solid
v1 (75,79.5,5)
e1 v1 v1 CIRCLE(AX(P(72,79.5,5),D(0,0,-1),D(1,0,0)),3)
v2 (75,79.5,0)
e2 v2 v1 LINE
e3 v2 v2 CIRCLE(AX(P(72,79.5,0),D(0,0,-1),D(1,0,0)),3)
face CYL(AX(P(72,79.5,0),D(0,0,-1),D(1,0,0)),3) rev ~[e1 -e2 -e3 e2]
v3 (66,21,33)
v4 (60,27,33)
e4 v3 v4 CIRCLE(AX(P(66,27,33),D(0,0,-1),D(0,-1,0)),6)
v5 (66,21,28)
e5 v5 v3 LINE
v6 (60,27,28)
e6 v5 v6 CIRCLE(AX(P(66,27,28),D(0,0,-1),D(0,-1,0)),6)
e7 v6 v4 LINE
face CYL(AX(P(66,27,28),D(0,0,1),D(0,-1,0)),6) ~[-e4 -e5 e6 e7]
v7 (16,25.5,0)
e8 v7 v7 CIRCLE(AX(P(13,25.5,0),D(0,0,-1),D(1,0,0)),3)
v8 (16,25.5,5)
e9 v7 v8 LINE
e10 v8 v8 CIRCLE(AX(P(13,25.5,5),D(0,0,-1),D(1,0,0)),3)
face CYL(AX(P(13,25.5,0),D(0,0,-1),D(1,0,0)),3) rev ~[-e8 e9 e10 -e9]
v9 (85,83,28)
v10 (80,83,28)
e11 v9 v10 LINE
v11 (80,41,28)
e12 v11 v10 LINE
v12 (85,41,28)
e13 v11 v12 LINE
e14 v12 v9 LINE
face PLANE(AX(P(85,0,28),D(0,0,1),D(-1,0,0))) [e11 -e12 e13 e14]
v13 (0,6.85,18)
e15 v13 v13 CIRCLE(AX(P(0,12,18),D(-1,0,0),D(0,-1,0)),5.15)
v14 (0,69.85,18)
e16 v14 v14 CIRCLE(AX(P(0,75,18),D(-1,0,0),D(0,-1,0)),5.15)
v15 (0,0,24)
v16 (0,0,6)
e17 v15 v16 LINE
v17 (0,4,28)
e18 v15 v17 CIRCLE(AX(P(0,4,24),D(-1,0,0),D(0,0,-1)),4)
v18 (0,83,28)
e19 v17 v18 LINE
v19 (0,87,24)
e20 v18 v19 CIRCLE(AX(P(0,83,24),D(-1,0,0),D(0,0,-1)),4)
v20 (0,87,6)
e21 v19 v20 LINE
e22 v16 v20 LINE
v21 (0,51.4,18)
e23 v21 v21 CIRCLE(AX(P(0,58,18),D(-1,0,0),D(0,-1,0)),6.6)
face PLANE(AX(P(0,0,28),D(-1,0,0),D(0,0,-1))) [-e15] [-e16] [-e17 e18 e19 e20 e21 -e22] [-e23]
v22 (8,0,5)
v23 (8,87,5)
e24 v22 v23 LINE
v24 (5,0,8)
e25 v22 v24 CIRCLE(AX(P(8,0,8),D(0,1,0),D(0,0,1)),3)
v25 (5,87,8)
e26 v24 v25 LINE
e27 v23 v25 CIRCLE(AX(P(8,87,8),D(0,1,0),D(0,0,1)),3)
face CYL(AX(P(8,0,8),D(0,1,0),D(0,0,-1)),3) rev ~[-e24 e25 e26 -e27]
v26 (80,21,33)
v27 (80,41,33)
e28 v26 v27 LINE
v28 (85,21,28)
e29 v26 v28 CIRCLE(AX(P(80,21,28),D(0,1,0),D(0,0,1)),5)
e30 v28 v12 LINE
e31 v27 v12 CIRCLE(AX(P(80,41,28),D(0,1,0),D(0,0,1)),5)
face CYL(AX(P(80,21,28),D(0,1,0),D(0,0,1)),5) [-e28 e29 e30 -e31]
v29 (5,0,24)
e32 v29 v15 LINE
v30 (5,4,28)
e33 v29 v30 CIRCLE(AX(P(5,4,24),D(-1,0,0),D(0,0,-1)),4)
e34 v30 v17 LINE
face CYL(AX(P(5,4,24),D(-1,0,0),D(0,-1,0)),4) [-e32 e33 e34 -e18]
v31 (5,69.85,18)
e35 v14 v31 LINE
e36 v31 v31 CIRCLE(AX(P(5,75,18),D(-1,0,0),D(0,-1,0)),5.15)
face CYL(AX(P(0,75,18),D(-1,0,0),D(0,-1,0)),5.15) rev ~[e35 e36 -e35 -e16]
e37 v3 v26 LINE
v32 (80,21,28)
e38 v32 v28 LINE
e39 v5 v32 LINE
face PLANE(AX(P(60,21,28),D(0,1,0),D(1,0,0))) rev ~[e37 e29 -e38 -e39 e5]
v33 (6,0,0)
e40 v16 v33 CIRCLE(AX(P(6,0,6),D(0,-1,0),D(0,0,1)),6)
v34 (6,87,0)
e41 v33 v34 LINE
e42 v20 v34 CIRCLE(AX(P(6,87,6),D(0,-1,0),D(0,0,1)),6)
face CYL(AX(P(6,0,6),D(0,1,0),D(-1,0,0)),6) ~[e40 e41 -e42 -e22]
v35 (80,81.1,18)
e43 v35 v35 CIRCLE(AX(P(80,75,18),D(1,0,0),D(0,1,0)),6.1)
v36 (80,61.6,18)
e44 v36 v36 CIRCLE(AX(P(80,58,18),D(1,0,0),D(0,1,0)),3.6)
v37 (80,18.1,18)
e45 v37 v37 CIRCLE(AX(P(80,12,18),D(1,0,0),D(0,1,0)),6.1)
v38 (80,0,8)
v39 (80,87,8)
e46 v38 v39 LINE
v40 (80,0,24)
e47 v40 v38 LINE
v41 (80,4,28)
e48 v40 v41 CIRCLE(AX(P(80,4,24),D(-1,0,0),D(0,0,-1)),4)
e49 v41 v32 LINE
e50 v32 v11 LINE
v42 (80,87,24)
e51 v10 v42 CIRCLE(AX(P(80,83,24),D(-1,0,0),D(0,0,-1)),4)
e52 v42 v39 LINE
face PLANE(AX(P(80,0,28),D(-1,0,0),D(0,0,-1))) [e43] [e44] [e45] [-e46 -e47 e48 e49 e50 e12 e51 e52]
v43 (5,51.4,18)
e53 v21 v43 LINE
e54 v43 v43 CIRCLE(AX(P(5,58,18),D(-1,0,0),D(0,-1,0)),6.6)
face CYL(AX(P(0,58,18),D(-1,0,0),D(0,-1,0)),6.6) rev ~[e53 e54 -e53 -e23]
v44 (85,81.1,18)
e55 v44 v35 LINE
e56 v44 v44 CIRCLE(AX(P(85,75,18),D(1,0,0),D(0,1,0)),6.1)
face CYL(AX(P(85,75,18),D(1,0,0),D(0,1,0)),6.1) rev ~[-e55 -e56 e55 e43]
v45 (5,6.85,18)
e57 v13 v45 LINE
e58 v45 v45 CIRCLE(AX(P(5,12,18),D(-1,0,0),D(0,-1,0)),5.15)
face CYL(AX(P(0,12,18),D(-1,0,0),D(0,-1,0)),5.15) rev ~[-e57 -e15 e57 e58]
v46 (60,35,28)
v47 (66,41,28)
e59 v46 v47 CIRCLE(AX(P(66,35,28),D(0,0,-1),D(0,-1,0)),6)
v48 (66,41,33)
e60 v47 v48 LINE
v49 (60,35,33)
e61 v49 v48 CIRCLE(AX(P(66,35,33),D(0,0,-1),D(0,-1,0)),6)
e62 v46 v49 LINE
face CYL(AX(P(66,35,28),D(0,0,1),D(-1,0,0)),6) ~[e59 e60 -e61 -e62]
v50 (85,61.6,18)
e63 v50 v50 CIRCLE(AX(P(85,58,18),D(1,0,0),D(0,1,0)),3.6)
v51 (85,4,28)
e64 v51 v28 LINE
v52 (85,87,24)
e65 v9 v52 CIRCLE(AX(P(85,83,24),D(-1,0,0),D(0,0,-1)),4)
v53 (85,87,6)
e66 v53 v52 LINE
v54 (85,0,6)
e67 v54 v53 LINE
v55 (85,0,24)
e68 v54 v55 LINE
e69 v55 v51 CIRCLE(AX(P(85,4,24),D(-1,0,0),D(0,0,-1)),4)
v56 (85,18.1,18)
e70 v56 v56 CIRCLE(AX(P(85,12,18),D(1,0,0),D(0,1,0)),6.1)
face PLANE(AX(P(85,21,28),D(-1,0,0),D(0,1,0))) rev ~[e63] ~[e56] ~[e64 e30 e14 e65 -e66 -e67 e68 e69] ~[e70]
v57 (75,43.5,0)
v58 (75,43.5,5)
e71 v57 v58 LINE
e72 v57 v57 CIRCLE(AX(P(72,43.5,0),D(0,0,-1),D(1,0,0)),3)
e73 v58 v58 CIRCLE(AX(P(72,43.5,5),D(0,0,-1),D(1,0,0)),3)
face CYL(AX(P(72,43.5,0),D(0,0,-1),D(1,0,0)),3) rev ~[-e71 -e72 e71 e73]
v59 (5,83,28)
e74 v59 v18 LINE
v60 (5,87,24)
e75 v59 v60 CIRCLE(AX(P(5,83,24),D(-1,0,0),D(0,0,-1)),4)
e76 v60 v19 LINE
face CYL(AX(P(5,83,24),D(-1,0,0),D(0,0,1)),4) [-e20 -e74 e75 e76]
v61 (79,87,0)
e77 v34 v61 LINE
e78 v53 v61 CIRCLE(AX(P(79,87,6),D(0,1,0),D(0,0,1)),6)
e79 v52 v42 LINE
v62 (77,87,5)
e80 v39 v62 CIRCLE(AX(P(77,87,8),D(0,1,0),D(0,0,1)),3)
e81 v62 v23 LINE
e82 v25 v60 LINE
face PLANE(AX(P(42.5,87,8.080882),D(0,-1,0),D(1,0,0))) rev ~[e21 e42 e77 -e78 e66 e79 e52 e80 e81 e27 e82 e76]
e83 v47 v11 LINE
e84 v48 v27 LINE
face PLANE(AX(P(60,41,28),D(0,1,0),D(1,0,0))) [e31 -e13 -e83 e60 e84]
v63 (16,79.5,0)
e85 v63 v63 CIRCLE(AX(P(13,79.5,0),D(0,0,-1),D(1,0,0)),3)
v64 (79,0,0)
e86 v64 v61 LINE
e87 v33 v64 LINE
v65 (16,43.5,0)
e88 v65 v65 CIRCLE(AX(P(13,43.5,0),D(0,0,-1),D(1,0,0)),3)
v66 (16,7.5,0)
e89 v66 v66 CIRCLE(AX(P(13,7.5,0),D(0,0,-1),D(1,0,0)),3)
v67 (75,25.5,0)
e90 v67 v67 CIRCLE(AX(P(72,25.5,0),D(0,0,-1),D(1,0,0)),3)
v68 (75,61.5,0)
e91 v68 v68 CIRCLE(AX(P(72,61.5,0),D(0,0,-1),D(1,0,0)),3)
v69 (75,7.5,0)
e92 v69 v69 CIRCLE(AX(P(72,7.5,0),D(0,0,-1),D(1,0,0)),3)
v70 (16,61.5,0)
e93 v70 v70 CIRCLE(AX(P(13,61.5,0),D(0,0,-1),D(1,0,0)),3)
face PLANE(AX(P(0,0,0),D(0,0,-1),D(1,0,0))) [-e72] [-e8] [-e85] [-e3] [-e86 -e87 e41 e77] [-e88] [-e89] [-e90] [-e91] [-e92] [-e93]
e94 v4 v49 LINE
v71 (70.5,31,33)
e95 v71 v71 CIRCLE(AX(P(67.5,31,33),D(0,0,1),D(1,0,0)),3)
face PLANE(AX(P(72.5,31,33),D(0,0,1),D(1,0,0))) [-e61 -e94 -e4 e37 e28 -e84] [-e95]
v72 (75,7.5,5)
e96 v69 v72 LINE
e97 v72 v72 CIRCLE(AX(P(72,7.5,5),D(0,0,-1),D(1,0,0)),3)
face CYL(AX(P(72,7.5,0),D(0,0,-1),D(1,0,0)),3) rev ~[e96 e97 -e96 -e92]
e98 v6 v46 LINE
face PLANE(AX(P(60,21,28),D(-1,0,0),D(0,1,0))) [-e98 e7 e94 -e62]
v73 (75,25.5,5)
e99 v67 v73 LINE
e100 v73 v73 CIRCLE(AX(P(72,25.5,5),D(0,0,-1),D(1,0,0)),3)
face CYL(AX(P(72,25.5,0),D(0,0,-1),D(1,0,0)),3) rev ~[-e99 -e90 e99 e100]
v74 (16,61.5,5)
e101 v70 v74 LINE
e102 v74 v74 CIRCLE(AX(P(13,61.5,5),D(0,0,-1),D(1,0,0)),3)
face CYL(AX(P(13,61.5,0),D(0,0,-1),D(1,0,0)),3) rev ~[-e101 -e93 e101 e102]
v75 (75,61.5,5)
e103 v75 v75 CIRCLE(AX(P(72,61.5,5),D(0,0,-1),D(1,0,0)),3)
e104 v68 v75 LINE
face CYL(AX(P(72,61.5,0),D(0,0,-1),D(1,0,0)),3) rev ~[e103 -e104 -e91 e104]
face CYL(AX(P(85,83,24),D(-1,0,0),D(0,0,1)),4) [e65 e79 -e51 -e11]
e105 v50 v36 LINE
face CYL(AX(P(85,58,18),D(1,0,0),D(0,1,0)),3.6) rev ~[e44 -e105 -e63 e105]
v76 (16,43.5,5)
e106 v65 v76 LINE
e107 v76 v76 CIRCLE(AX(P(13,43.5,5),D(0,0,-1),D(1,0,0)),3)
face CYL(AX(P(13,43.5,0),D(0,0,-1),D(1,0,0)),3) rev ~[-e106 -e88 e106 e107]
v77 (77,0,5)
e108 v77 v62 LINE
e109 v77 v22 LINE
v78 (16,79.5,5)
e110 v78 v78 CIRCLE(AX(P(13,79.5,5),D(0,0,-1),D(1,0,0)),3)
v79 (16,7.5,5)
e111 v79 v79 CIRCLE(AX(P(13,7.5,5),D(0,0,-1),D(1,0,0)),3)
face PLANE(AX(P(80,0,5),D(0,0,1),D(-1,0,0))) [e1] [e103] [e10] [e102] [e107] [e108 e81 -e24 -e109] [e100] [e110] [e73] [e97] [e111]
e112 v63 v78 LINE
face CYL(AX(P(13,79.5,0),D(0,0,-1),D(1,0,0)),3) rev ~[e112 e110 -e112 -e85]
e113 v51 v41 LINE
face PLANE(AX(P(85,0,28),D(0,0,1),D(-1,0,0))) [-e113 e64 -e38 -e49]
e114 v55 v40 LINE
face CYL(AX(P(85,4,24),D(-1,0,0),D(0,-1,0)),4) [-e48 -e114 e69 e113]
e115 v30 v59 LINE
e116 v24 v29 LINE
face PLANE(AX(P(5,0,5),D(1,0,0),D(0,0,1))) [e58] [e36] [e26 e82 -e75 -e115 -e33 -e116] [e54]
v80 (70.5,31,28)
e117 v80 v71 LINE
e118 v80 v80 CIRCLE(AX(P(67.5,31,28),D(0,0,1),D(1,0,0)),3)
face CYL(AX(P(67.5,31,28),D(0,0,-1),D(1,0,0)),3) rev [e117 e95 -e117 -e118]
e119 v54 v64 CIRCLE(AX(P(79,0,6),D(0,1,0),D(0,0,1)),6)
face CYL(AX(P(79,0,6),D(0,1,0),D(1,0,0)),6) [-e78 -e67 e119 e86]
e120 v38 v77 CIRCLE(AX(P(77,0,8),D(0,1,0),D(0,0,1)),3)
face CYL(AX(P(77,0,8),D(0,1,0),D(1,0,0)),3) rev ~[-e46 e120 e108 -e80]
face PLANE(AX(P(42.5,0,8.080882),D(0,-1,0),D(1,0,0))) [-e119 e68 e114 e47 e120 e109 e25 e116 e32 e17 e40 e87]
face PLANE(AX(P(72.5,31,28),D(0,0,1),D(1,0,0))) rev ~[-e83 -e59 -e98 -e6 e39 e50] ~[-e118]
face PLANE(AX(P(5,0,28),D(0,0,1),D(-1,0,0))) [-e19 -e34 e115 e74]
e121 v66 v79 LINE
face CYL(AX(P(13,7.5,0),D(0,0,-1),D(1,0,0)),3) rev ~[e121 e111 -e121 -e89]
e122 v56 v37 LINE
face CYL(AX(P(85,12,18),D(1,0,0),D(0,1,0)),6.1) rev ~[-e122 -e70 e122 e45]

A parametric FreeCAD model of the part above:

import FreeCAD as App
import Part
import Sketcher
from FreeCAD import Vector
Q = App.Units.Quantity


def edges_at(feature, points):
    """Names of the edges that pass closest to the given points."""
    edges = feature.Shape.Edges
    near = lambda p: min(range(len(edges)), key=lambda i: edges[i].distToShape(Part.Vertex(*p))[0])
    return sorted({f"Edge{near(p) + 1}" for p in points})

doc = App.newDocument("Part")
body = doc.addObject("PartDesign::Body", "Body")

sketch1 = body.newObject("Sketcher::SketchObject", "Sketch")
sketch1.AttachmentSupport = (doc.getObject("XZ_Plane"), [""])
sketch1.MapMode = "FlatFace"
sketch1.addGeometry([
    Part.LineSegment(Vector(0, 28, 0), Vector(0, 0, 0)),
    Part.LineSegment(Vector(0, 0, 0), Vector(85, 0, 0)),
    Part.LineSegment(Vector(85, 0, 0), Vector(85, 28, 0)),
    Part.LineSegment(Vector(85, 28, 0), Vector(80, 28, 0)),
    Part.LineSegment(Vector(80, 28, 0), Vector(80, 5, 0)),
    Part.LineSegment(Vector(80, 5, 0), Vector(5, 5, 0)),
    Part.LineSegment(Vector(5, 5, 0), Vector(5, 28, 0)),
    Part.LineSegment(Vector(5, 28, 0), Vector(0, 28, 0)),
], False)
sketch1.addConstraint([
    Sketcher.Constraint("Coincident", 0, 2, 1, 1),
    Sketcher.Constraint("Coincident", 1, 2, 2, 1),
    Sketcher.Constraint("Coincident", 2, 2, 3, 1),
    Sketcher.Constraint("Coincident", 3, 2, 4, 1),
    Sketcher.Constraint("Coincident", 4, 2, 5, 1),
    Sketcher.Constraint("Coincident", 5, 2, 6, 1),
    Sketcher.Constraint("Coincident", 6, 2, 7, 1),
    Sketcher.Constraint("Coincident", 7, 2, 0, 1),
    Sketcher.Constraint("Vertical", 0),
    Sketcher.Constraint("Horizontal", 1),
    Sketcher.Constraint("Vertical", 2),
    Sketcher.Constraint("Horizontal", 3),
    Sketcher.Constraint("Vertical", 4),
    Sketcher.Constraint("Horizontal", 5),
    Sketcher.Constraint("Vertical", 6),
    Sketcher.Constraint("Horizontal", 7),
    Sketcher.Constraint("Coincident", 0, 2, -1, 1),
    Sketcher.Constraint("Horizontal", 3, 2, 6, 2),
    Sketcher.Constraint("Equal", 3, 7),
    Sketcher.Constraint("DistanceX", 1, 1, 1, 2, Q("85 mm")),
    Sketcher.Constraint("DistanceX", 3, 2, 3, 1, Q("5 mm")),
    Sketcher.Constraint("DistanceY", 0, 2, 0, 1, Q("28 mm")),
    Sketcher.Constraint("DistanceY", 4, 2, 4, 1, Q("23 mm")),
])
pad1 = body.newObject("PartDesign::Pad", "Pad")
pad1.Profile = sketch1
pad1.Length = 87
pad1.Reversed = True
doc.recompute()

fillet = body.newObject("PartDesign::Fillet", "Fillet")
fillet.Base = (pad1, edges_at(pad1, [(5, 43.5, 5)]))
fillet.Radius = 3
doc.recompute()

fillet2 = body.newObject("PartDesign::Fillet", "Fillet001")
fillet2.Base = (fillet, edges_at(fillet, [(0, 43.5, 0), (85, 43.5, 0)]))
fillet2.Radius = 6
doc.recompute()

fillet3 = body.newObject("PartDesign::Fillet", "Fillet002")
fillet3.Base = (fillet2, edges_at(fillet2, [(80, 43.5, 5)]))
fillet3.Radius = 3
doc.recompute()

fillet4 = body.newObject("PartDesign::Fillet", "Fillet003")
fillet4.Base = (fillet3, edges_at(fillet3, [
    (82.5, 0, 28),
    (2.5, 0, 28),
    (2.5, 87, 28),
    (82.5, 87, 28),
]))
fillet4.Radius = 4

sketch2 = body.newObject("Sketcher::SketchObject", "Sketch001")
sketch2.AttachmentSupport = (doc.getObject("XY_Plane"), [""])
sketch2.MapMode = "FlatFace"
sketch2.AttachmentOffset = App.Placement(Vector(0, 0, 28), App.Rotation())
sketch2.addGeometry([
    Part.LineSegment(Vector(60, 41, 0), Vector(60, 21, 0)),
    Part.LineSegment(Vector(60, 21, 0), Vector(85, 21, 0)),
    Part.LineSegment(Vector(85, 21, 0), Vector(85, 41, 0)),
    Part.LineSegment(Vector(85, 41, 0), Vector(60, 41, 0)),
    Part.Circle(Vector(67.5, 31, 0), Vector(0, 0, 1), 3),
], False)
sketch2.addConstraint([
    Sketcher.Constraint("Coincident", 0, 2, 1, 1),
    Sketcher.Constraint("Coincident", 1, 2, 2, 1),
    Sketcher.Constraint("Coincident", 2, 2, 3, 1),
    Sketcher.Constraint("Coincident", 3, 2, 0, 1),
    Sketcher.Constraint("Vertical", 0),
    Sketcher.Constraint("Horizontal", 1),
    Sketcher.Constraint("Vertical", 2),
    Sketcher.Constraint("Horizontal", 3),
    Sketcher.Constraint("Diameter", 4, Q("6 mm")),
    Sketcher.Constraint("DistanceX", 1, 1, 1, 2, Q("25 mm")),
    Sketcher.Constraint("DistanceY", 0, 2, 0, 1, Q("20 mm")),
    Sketcher.Constraint("DistanceY", -1, 1, 4, 3, Q("31 mm")),
    Sketcher.Constraint("DistanceX", -1, 1, 0, 2, Q("60 mm")),
    Sketcher.Constraint("DistanceY", -1, 1, 0, 2, Q("21 mm")),
    Sketcher.Constraint("DistanceX", -1, 1, 4, 3, Q("67.5 mm")),
])
pad2 = body.newObject("PartDesign::Pad", "Pad001")
pad2.Profile = sketch2
pad2.Length = 5
doc.recompute()

fillet5 = body.newObject("PartDesign::Fillet", "Fillet004")
fillet5.Base = (pad2, edges_at(pad2, [(85, 31, 33)]))
fillet5.Radius = 5
doc.recompute()

fillet6 = body.newObject("PartDesign::Fillet", "Fillet005")
fillet6.Base = (fillet5, edges_at(fillet5, [(60, 21, 30.5), (60, 41, 30.5)]))
fillet6.Radius = 6

sketch3 = body.newObject("Sketcher::SketchObject", "Sketch002")
sketch3.AttachmentSupport = (doc.getObject("YZ_Plane"), [""])
sketch3.MapMode = "FlatFace"
sketch3.addGeometry([
    Part.Circle(Vector(12, 18, 0), Vector(0, 0, 1), 5.15),
    Part.Circle(Vector(58, 18, 0), Vector(0, 0, 1), 6.6),
    Part.Circle(Vector(75, 18, 0), Vector(0, 0, 1), 5.15),
], False)
sketch3.addConstraint([
    Sketcher.Constraint("Equal", 0, 2),
    Sketcher.Constraint("Horizontal", 0, 3, 1, 3),
    Sketcher.Constraint("Horizontal", 1, 3, 2, 3),
    Sketcher.Constraint("Diameter", 0, Q("10.3 mm")),
    Sketcher.Constraint("Diameter", 1, Q("13.2 mm")),
    Sketcher.Constraint("DistanceX", -1, 1, 0, 3, Q("12 mm")),
    Sketcher.Constraint("DistanceY", -1, 1, 0, 3, Q("18 mm")),
    Sketcher.Constraint("DistanceX", -1, 1, 1, 3, Q("58 mm")),
    Sketcher.Constraint("DistanceX", -1, 1, 2, 3, Q("75 mm")),
])
pocket1 = body.newObject("PartDesign::Pocket", "Pocket")
pocket1.Profile = sketch3
pocket1.Length = 25
pocket1.Reversed = True

sketch4 = body.newObject("Sketcher::SketchObject", "Sketch003")
sketch4.AttachmentSupport = (doc.getObject("YZ_Plane"), [""])
sketch4.MapMode = "FlatFace"
sketch4.AttachmentOffset = App.Placement(Vector(0, 0, 85), App.Rotation())
sketch4.addGeometry([
    Part.Circle(Vector(75, 18, 0), Vector(0, 0, 1), 6.1),
    Part.Circle(Vector(58, 18, 0), Vector(0, 0, 1), 3.6),
    Part.Circle(Vector(12, 18, 0), Vector(0, 0, 1), 6.1),
], False)
sketch4.addConstraint([
    Sketcher.Constraint("Equal", 0, 2),
    Sketcher.Constraint("Horizontal", 0, 3, 1, 3),
    Sketcher.Constraint("Horizontal", 1, 3, 2, 3),
    Sketcher.Constraint("Diameter", 0, Q("12.2 mm")),
    Sketcher.Constraint("Diameter", 1, Q("7.2 mm")),
    Sketcher.Constraint("DistanceX", -1, 1, 0, 3, Q("75 mm")),
    Sketcher.Constraint("DistanceY", -1, 1, 0, 3, Q("18 mm")),
    Sketcher.Constraint("DistanceX", -1, 1, 1, 3, Q("58 mm")),
    Sketcher.Constraint("DistanceX", -1, 1, 2, 3, Q("12 mm")),
])
pocket2 = body.newObject("PartDesign::Pocket", "Pocket001")
pocket2.Profile = sketch4
pocket2.Length = 25

sketch5 = body.newObject("Sketcher::SketchObject", "Sketch004")
sketch5.AttachmentSupport = (doc.getObject("XY_Plane"), [""])
sketch5.MapMode = "FlatFace"
sketch5.addGeometry([
    Part.Circle(Vector(13, 7.5, 0), Vector(0, 0, 1), 3),
    Part.Circle(Vector(13, 25.5, 0), Vector(0, 0, 1), 3),
    Part.Circle(Vector(13, 43.5, 0), Vector(0, 0, 1), 3),
    Part.Circle(Vector(13, 79.5, 0), Vector(0, 0, 1), 3),
    Part.Circle(Vector(13, 61.5, 0), Vector(0, 0, 1), 3),
    Part.Circle(Vector(72, 79.5, 0), Vector(0, 0, 1), 3),
    Part.Circle(Vector(72, 61.5, 0), Vector(0, 0, 1), 3),
    Part.Circle(Vector(72, 43.5, 0), Vector(0, 0, 1), 3),
    Part.Circle(Vector(72, 7.5, 0), Vector(0, 0, 1), 3),
    Part.Circle(Vector(72, 25.5, 0), Vector(0, 0, 1), 3),
], False)
sketch5.addConstraint([
    Sketcher.Constraint("Equal", 0, 1),
    Sketcher.Constraint("Equal", 1, 2),
    Sketcher.Constraint("Equal", 2, 3),
    Sketcher.Constraint("Equal", 3, 4),
    Sketcher.Constraint("Equal", 4, 5),
    Sketcher.Constraint("Equal", 5, 6),
    Sketcher.Constraint("Equal", 6, 7),
    Sketcher.Constraint("Equal", 7, 8),
    Sketcher.Constraint("Equal", 8, 9),
    Sketcher.Constraint("Horizontal", 3, 3, 5, 3),
    Sketcher.Constraint("Horizontal", 4, 3, 6, 3),
    Sketcher.Constraint("Horizontal", 2, 3, 7, 3),
    Sketcher.Constraint("Horizontal", 0, 3, 8, 3),
    Sketcher.Constraint("Horizontal", 1, 3, 9, 3),
    Sketcher.Constraint("Vertical", 0, 3, 1, 3),
    Sketcher.Constraint("Vertical", 1, 3, 2, 3),
    Sketcher.Constraint("Vertical", 2, 3, 3, 3),
    Sketcher.Constraint("Vertical", 3, 3, 4, 3),
    Sketcher.Constraint("Vertical", 5, 3, 6, 3),
    Sketcher.Constraint("Vertical", 6, 3, 7, 3),
    Sketcher.Constraint("Vertical", 7, 3, 8, 3),
    Sketcher.Constraint("Vertical", 8, 3, 9, 3),
    Sketcher.Constraint("Diameter", 0, Q("6 mm")),
    Sketcher.Constraint("DistanceX", -1, 1, 0, 3, Q("13 mm")),
    Sketcher.Constraint("DistanceX", -1, 1, 5, 3, Q("72 mm")),
    Sketcher.Constraint("DistanceY", 0, 3, 1, 3, Q("18 mm")),
    Sketcher.Constraint("DistanceY", 1, 3, 2, 3, Q("18 mm")),
    Sketcher.Constraint("DistanceY", 2, 3, 3, 3, Q("36 mm")),
    Sketcher.Constraint("DistanceY", 2, 3, 4, 3, Q("18 mm")),
    Sketcher.Constraint("DistanceY", -1, 1, 0, 3, Q("7.5 mm")),
])
pocket3 = body.newObject("PartDesign::Pocket", "Pocket002")
pocket3.Profile = sketch5
pocket3.Length = 25
pocket3.Reversed = True

doc.recompute()
